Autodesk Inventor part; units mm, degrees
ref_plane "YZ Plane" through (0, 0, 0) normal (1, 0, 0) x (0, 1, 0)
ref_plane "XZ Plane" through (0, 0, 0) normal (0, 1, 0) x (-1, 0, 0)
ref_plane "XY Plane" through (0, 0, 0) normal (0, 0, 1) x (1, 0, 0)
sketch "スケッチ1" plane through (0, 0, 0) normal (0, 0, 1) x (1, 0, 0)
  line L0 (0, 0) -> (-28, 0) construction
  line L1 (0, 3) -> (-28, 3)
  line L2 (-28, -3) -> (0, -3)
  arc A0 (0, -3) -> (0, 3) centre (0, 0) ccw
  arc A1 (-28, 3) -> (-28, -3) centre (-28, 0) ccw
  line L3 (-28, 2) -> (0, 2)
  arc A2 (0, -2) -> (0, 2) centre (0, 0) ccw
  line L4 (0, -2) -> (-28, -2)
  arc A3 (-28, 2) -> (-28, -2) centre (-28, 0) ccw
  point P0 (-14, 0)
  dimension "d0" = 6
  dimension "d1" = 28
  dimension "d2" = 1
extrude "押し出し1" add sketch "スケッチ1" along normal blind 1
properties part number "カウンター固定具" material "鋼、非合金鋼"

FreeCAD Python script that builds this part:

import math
import FreeCAD as App
import Part
import Sketcher
Q = App.Units.Quantity

doc = App.newDocument("Part")
params = doc.addObject("Spreadsheet::Sheet", "Params")
for row, (alias, value) in enumerate([
    ("sketch1_radius", "3 mm"),
    ("sketch1_width", "28 mm"),
    ("sketch1_radius2", "2 mm"),
    ("pad1_length", "1 mm"),
], start=1):
    params.set(f"A{row}", alias)
    params.set(f"B{row}", "=" + value)
    params.setAlias(f"B{row}", alias)

body = doc.addObject("PartDesign::Body", "Body")

# Sketch on XY plane
sketch1 = body.newObject("Sketcher::SketchObject", "Sketch")
sketch1.AttachmentSupport = (doc.getObject("XY_Plane"), [""])
sketch1.MapMode = "FlatFace"
sketch1.addGeometry([
    Part.ArcOfCircle(Part.Circle(App.Vector(0, 0, 0), App.Vector(0, 0, 1), 3), math.radians(-90), math.radians(90)),  # 0
    Part.LineSegment(App.Vector(0, 3, 0), App.Vector(-28, 3, 0)),  # 1
    Part.ArcOfCircle(Part.Circle(App.Vector(-28, 0, 0), App.Vector(0, 0, 1), 3), math.radians(90), math.radians(270)),  # 2
    Part.LineSegment(App.Vector(-28, -3, 0), App.Vector(0, -3, 0)),  # 3
    Part.ArcOfCircle(Part.Circle(App.Vector(-28, 0, 0), App.Vector(0, 0, 1), 2), math.radians(90), math.radians(270)),  # 4
    Part.LineSegment(App.Vector(-28, 2, 0), App.Vector(0, 2, 0)),  # 5
    Part.ArcOfCircle(Part.Circle(App.Vector(0, 0, 0), App.Vector(0, 0, 1), 2), math.radians(-90), math.radians(90)),  # 6
    Part.LineSegment(App.Vector(0, -2, 0), App.Vector(-28, -2, 0)),  # 7
], False)
sketch1.addConstraint([
    Sketcher.Constraint("Tangent", 0, 2, 1, 1),
    Sketcher.Constraint("Tangent", 1, 2, 2, 1),
    Sketcher.Constraint("Tangent", 2, 2, 3, 1),
    Sketcher.Constraint("Tangent", 3, 2, 0, 1),
    Sketcher.Constraint("Tangent", 4, 1, 5, 1),
    Sketcher.Constraint("Tangent", 5, 2, 6, 2),
    Sketcher.Constraint("Tangent", 6, 1, 7, 1),
    Sketcher.Constraint("Tangent", 7, 2, 4, 2),
    Sketcher.Constraint("Horizontal", 1),
    Sketcher.Constraint("Horizontal", 3),
    Sketcher.Constraint("Horizontal", 5),
    Sketcher.Constraint("Horizontal", 7),
    Sketcher.Constraint("Coincident", 0, 3, -1, 1),
    Sketcher.Constraint("Coincident", 6, 3, -1, 1),
    Sketcher.Constraint("Vertical", 4, 3, 1, 2),
    Sketcher.Constraint("Radius", 0, Q("3 mm")),
    Sketcher.Constraint("DistanceX", 1, 2, 1, 1, Q("28 mm")),
    Sketcher.Constraint("Radius", 4, Q("2 mm")),
])
sketch1.setExpression("Constraints[15]", "Params.sketch1_radius")
sketch1.setExpression("Constraints[16]", "Params.sketch1_width")
sketch1.setExpression("Constraints[17]", "Params.sketch1_radius2")
pad1 = body.newObject("PartDesign::Pad", "Pad")
pad1.Profile = sketch1
pad1.setExpression("Length", "Params.pad1_length")

doc.recompute()
